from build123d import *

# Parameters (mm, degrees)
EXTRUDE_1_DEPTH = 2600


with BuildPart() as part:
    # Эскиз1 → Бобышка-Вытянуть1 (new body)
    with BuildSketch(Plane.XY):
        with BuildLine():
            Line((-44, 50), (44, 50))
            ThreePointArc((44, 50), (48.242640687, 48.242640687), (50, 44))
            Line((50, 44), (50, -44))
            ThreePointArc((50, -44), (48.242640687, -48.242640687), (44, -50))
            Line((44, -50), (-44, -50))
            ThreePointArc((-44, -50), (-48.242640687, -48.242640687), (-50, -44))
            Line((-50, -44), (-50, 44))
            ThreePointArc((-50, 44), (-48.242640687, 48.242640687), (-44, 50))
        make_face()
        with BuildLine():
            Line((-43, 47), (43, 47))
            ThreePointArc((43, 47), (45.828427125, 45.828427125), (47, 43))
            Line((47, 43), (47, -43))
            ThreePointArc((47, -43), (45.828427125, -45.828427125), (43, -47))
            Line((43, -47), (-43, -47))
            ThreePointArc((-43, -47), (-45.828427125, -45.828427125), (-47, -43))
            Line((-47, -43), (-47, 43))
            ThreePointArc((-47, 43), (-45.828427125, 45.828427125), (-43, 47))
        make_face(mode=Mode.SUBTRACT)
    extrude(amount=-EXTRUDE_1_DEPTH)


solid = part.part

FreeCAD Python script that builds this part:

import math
import FreeCAD as App
import Part
import Sketcher

V = App.Vector

doc = App.newDocument("Part")
body = doc.addObject("PartDesign::Body", "Body")

# Sketch on XY plane
sketch1 = body.newObject("Sketcher::SketchObject", "Sketch")
sketch1.AttachmentSupport = (doc.getObject("XY_Plane"), [""])
sketch1.MapMode = "FlatFace"
sketch1.addGeometry([
    Part.LineSegment(V(44, 50, 0), V(-44, 50, 0)),  # 0
    Part.ArcOfCircle(Part.Circle(V(-44, 44, 0), V(0, 0, 1), 6), math.radians(90), math.radians(180)),  # 1
    Part.LineSegment(V(-50, 44, 0), V(-50, -44, 0)),  # 2
    Part.ArcOfCircle(Part.Circle(V(-44, -44, 0), V(0, 0, 1), 6), math.radians(180), math.radians(270)),  # 3
    Part.LineSegment(V(-44, -50, 0), V(44, -50, 0)),  # 4
    Part.ArcOfCircle(Part.Circle(V(44, -44, 0), V(0, 0, 1), 6), math.radians(-90), math.radians(0)),  # 5
    Part.LineSegment(V(50, -44, 0), V(50, 44, 0)),  # 6
    Part.ArcOfCircle(Part.Circle(V(44, 44, 0), V(0, 0, 1), 6), math.radians(0), math.radians(90)),  # 7
    Part.LineSegment(V(-43, 47, 0), V(43, 47, 0)),  # 8
    Part.ArcOfCircle(Part.Circle(V(43, 43, 0), V(0, 0, 1), 4), math.radians(0), math.radians(90)),  # 9
    Part.LineSegment(V(47, 43, 0), V(47, -43, 0)),  # 10
    Part.ArcOfCircle(Part.Circle(V(43, -43, 0), V(0, 0, 1), 4), math.radians(-90), math.radians(0)),  # 11
    Part.LineSegment(V(43, -47, 0), V(-43, -47, 0)),  # 12
    Part.ArcOfCircle(Part.Circle(V(-43, -43, 0), V(0, 0, 1), 4), math.radians(180), math.radians(270)),  # 13
    Part.LineSegment(V(-47, -43, 0), V(-47, 43, 0)),  # 14
    Part.ArcOfCircle(Part.Circle(V(-43, 43, 0), V(0, 0, 1), 4), math.radians(90), math.radians(180)),  # 15
], False)
sketch1.addConstraint([
    Sketcher.Constraint("Tangent", 0, 2, 1, 1),
    Sketcher.Constraint("Tangent", 1, 2, 2, 1),
    Sketcher.Constraint("Tangent", 2, 2, 3, 1),
    Sketcher.Constraint("Tangent", 3, 2, 4, 1),
    Sketcher.Constraint("Tangent", 4, 2, 5, 1),
    Sketcher.Constraint("Tangent", 5, 2, 6, 1),
    Sketcher.Constraint("Tangent", 6, 2, 7, 1),
    Sketcher.Constraint("Tangent", 7, 2, 0, 1),
    Sketcher.Constraint("Tangent", 8, 2, 9, 2),
    Sketcher.Constraint("Tangent", 9, 1, 10, 1),
    Sketcher.Constraint("Tangent", 10, 2, 11, 2),
    Sketcher.Constraint("Tangent", 11, 1, 12, 1),
    Sketcher.Constraint("Tangent", 12, 2, 13, 2),
    Sketcher.Constraint("Tangent", 13, 1, 14, 1),
    Sketcher.Constraint("Tangent", 14, 2, 15, 2),
    Sketcher.Constraint("Tangent", 15, 1, 8, 1),
    Sketcher.Constraint("Horizontal", 0),
    Sketcher.Constraint("Vertical", 2),
    Sketcher.Constraint("Horizontal", 4),
    Sketcher.Constraint("Vertical", 6),
    Sketcher.Constraint("Horizontal", 8),
    Sketcher.Constraint("Vertical", 10),
    Sketcher.Constraint("Horizontal", 12),
    Sketcher.Constraint("Vertical", 14),
    Sketcher.Constraint("Equal", 1, 3),
    Sketcher.Constraint("Equal", 3, 5),
    Sketcher.Constraint("Equal", 5, 7),
    Sketcher.Constraint("Equal", 9, 11),
    Sketcher.Constraint("Equal", 11, 13),
    Sketcher.Constraint("Equal", 13, 15),
    Sketcher.Constraint("Symmetric", 1, 3, 5, 3, -1, 1),
    Sketcher.Constraint("Symmetric", 9, 3, 13, 3, -1, 1),
    Sketcher.Constraint("Equal", 4, 2),
    Sketcher.Constraint("Equal", 12, 10),
    Sketcher.Constraint("Radius", 1, 6.0),
    Sketcher.Constraint("Radius", 9, 4.0),
    Sketcher.Constraint("DistanceX", 0, 2, 0, 1, 88.0),
    Sketcher.Constraint("DistanceX", 8, 1, 8, 2, 86.0),
])
pad1 = body.newObject("PartDesign::Pad", "Pad")
pad1.Profile = sketch1
pad1.Length = 2600
pad1.Reversed = True

doc.recompute()
